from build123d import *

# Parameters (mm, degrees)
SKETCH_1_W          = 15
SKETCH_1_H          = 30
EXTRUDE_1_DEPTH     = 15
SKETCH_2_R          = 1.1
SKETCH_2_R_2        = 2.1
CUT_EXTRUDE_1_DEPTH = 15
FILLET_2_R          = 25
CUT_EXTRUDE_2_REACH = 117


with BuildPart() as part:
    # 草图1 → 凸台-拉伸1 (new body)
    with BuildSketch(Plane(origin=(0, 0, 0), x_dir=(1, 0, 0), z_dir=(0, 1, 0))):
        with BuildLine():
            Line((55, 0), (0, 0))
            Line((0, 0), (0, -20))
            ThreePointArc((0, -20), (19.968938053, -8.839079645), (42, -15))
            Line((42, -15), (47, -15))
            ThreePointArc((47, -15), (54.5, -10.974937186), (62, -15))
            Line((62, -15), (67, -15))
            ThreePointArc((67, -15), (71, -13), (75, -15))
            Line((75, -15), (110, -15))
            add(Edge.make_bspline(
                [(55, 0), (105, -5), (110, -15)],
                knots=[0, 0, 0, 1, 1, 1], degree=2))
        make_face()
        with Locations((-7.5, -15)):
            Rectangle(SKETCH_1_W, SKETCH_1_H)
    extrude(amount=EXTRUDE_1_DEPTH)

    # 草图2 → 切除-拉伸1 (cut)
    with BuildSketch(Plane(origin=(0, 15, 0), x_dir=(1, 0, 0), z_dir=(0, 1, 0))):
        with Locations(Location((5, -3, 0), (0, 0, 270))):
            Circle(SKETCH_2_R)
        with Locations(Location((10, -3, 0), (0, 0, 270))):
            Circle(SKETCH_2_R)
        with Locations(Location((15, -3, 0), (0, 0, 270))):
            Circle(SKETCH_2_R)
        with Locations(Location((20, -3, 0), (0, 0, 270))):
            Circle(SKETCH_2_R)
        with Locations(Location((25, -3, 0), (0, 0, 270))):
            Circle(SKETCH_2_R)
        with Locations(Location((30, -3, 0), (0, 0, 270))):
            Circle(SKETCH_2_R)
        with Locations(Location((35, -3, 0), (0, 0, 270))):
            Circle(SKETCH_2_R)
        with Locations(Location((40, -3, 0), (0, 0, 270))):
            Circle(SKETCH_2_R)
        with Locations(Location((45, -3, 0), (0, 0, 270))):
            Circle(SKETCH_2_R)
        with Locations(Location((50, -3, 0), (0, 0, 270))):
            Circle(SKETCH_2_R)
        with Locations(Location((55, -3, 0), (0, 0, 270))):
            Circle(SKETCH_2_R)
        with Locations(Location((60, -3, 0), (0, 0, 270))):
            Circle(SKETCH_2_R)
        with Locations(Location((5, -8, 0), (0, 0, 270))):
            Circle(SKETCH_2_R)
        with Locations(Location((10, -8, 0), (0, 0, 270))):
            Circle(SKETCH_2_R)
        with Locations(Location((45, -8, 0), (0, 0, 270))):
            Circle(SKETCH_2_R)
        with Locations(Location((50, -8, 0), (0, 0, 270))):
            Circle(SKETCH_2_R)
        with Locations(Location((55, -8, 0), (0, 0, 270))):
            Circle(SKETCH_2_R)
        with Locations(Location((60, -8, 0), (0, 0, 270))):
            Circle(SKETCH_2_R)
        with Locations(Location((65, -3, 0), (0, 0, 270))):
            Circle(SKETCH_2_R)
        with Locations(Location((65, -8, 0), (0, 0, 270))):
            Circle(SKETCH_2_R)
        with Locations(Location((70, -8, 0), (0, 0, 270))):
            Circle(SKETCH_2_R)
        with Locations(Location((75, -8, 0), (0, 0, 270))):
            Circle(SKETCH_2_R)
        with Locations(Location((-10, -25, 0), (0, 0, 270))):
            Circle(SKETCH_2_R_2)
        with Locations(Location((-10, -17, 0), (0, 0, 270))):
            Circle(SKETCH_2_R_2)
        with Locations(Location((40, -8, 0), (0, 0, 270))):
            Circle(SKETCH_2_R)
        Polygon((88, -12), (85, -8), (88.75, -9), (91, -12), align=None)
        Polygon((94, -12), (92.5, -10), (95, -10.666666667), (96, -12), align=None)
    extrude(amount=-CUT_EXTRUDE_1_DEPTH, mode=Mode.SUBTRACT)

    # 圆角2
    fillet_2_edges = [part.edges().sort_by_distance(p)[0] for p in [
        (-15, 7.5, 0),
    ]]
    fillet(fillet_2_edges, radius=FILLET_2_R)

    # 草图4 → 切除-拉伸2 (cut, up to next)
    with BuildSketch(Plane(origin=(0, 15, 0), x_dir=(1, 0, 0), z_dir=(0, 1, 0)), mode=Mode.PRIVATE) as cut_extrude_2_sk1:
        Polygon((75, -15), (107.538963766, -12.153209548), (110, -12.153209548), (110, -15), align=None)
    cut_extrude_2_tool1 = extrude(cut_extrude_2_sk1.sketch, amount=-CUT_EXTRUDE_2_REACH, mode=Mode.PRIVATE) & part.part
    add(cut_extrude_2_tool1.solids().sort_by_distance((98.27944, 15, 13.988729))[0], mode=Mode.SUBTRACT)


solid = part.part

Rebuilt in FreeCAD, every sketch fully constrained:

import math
import FreeCAD as App
import Part
import Sketcher
Q = App.Units.Quantity


def edges_at(feature, points):
    """Names of the edges that pass closest to the given points."""
    edges = feature.Shape.Edges
    near = lambda p: min(range(len(edges)), key=lambda i: edges[i].distToShape(Part.Vertex(*p))[0])
    return sorted({f"Edge{near(p) + 1}" for p in points})


def add_polygon(sketch, points):
    """Adds a closed chain of lines whose ends are joined by coincident constraints."""
    first, n = sketch.GeometryCount, len(points)
    for a, b in zip(points, points[1:] + points[:1]):
        sketch.addGeometry(Part.LineSegment(App.Vector(*a, 0), App.Vector(*b, 0)), False)
    for i in range(n):
        sketch.addConstraint(Sketcher.Constraint("Coincident", first + i, 2, first + (i + 1) % n, 1))

doc = App.newDocument("Part")
body = doc.addObject("PartDesign::Body", "Body")

sketch1 = doc.addObject("Sketcher::SketchObject", "Sketch")
body.addObject(sketch1)
sketch1.AttachmentSupport = (doc.XZ_Plane, [""])
sketch1.MapMode = "FlatFace"
sketch1.addGeometry([
    Part.LineSegment(App.Vector(55, 0, 0), App.Vector(-15, 0, 0)),
    Part.LineSegment(App.Vector(-15, 0, 0), App.Vector(-15, 30, 0)),
    Part.LineSegment(App.Vector(-15, 30, 0), App.Vector(0, 30, 0)),
    Part.LineSegment(App.Vector(0, 30, 0), App.Vector(0, 20, 0)),
    Part.ArcOfCircle(Part.Circle(App.Vector(23.515325, 38.628728, 0), App.Vector(0, 0, 1), 30), math.radians(-141.613903), math.radians(-51.964046)),
    Part.LineSegment(App.Vector(42, 15, 0), App.Vector(47, 15, 0)),
    Part.ArcOfCircle(Part.Circle(App.Vector(54.5, 19.974937, 0), App.Vector(0, 0, 1), 9), math.radians(-146.44269), math.radians(-33.55731)),
    Part.LineSegment(App.Vector(62, 15, 0), App.Vector(67, 15, 0)),
    Part.ArcOfCircle(Part.Circle(App.Vector(71, 18, 0), App.Vector(0, 0, 1), 5), math.radians(-143.130102), math.radians(-36.869898)),
    Part.LineSegment(App.Vector(75, 15, 0), App.Vector(110, 15, 0)),
    Part.BSplineCurve([App.Vector(55, 0, 0), App.Vector(105, 5, 0), App.Vector(110, 15, 0)], [3, 3], [0, 1], False, 2, [1, 1, 1], False),
], False)
sketch1.addConstraint([
    Sketcher.Constraint("Block", 10),
    Sketcher.Constraint("Coincident", 0, 2, 1, 1),
    Sketcher.Constraint("Coincident", 1, 2, 2, 1),
    Sketcher.Constraint("Coincident", 2, 2, 3, 1),
    Sketcher.Constraint("Coincident", 3, 2, 4, 1),
    Sketcher.Constraint("Coincident", 4, 2, 5, 1),
    Sketcher.Constraint("Coincident", 5, 2, 6, 1),
    Sketcher.Constraint("Coincident", 6, 2, 7, 1),
    Sketcher.Constraint("Coincident", 7, 2, 8, 1),
    Sketcher.Constraint("Coincident", 8, 2, 9, 1),
    Sketcher.Constraint("Coincident", 9, 2, 10, 2),
    Sketcher.Constraint("Coincident", 10, 1, 0, 1),
    Sketcher.Constraint("Horizontal", 0),
    Sketcher.Constraint("Vertical", 1),
    Sketcher.Constraint("Horizontal", 2),
    Sketcher.Constraint("Vertical", 3),
    Sketcher.Constraint("Horizontal", 5),
    Sketcher.Constraint("Horizontal", 7),
    Sketcher.Constraint("Horizontal", 9),
    Sketcher.Constraint("PointOnObject", 2, 2, -2),
    Sketcher.Constraint("Horizontal", 5, 2, 6, 2),
    Sketcher.Constraint("Horizontal", 7, 2, 8, 2),
    Sketcher.Constraint("Equal", 5, 7),
    Sketcher.Constraint("Radius", 4, 30.0),
    Sketcher.Constraint("Radius", 6, 9.0),
    Sketcher.Constraint("Radius", 8, 5.0),
    Sketcher.Constraint("DistanceX", 0, 2, 0, 1, 70.0),
    Sketcher.Constraint("DistanceX", 5, 1, 5, 2, 5.0),
    Sketcher.Constraint("DistanceX", 9, 1, 9, 2, 35.0),
    Sketcher.Constraint("DistanceY", 1, 1, 1, 2, 30.0),
    Sketcher.Constraint("DistanceY", 3, 2, 3, 1, 10.0),
    Sketcher.Constraint("DistanceX", -1, 1, 8, 3, 71.0),
    Sketcher.Constraint("DistanceX", -1, 1, 4, 2, 42.0),
])
pad1 = doc.addObject("PartDesign::Pad", "Pad")
body.addObject(pad1)
pad1.Profile = sketch1
pad1.Length = 15
pad1.Reversed = True

sketch2 = doc.addObject("Sketcher::SketchObject", "Sketch001")
body.addObject(sketch2)
sketch2.AttachmentSupport = (doc.XZ_Plane, [""])
sketch2.MapMode = "FlatFace"
sketch2.AttachmentOffset = App.Placement(App.Vector(0, 0, -15), App.Rotation())
sketch2.addGeometry(Part.Circle(App.Vector(5, 3, 0), App.Vector(0, 0, 1), 1.1), False)
sketch2.addGeometry(Part.Circle(App.Vector(10, 3, 0), App.Vector(0, 0, 1), 1.1), False)
sketch2.addGeometry(Part.Circle(App.Vector(15, 3, 0), App.Vector(0, 0, 1), 1.1), False)
sketch2.addGeometry(Part.Circle(App.Vector(20, 3, 0), App.Vector(0, 0, 1), 1.1), False)
sketch2.addGeometry(Part.Circle(App.Vector(25, 3, 0), App.Vector(0, 0, 1), 1.1), False)
sketch2.addGeometry(Part.Circle(App.Vector(30, 3, 0), App.Vector(0, 0, 1), 1.1), False)
sketch2.addGeometry(Part.Circle(App.Vector(35, 3, 0), App.Vector(0, 0, 1), 1.1), False)
sketch2.addGeometry(Part.Circle(App.Vector(40, 3, 0), App.Vector(0, 0, 1), 1.1), False)
sketch2.addGeometry(Part.Circle(App.Vector(45, 3, 0), App.Vector(0, 0, 1), 1.1), False)
sketch2.addGeometry(Part.Circle(App.Vector(50, 3, 0), App.Vector(0, 0, 1), 1.1), False)
sketch2.addGeometry(Part.Circle(App.Vector(55, 3, 0), App.Vector(0, 0, 1), 1.1), False)
sketch2.addGeometry(Part.Circle(App.Vector(60, 3, 0), App.Vector(0, 0, 1), 1.1), False)
sketch2.addGeometry(Part.Circle(App.Vector(5, 8, 0), App.Vector(0, 0, 1), 1.1), False)
sketch2.addGeometry(Part.Circle(App.Vector(10, 8, 0), App.Vector(0, 0, 1), 1.1), False)
sketch2.addGeometry(Part.Circle(App.Vector(45, 8, 0), App.Vector(0, 0, 1), 1.1), False)
sketch2.addGeometry(Part.Circle(App.Vector(50, 8, 0), App.Vector(0, 0, 1), 1.1), False)
sketch2.addGeometry(Part.Circle(App.Vector(55, 8, 0), App.Vector(0, 0, 1), 1.1), False)
sketch2.addGeometry(Part.Circle(App.Vector(60, 8, 0), App.Vector(0, 0, 1), 1.1), False)
sketch2.addGeometry(Part.Circle(App.Vector(65, 3, 0), App.Vector(0, 0, 1), 1.1), False)
sketch2.addGeometry(Part.Circle(App.Vector(65, 8, 0), App.Vector(0, 0, 1), 1.1), False)
sketch2.addGeometry(Part.Circle(App.Vector(70, 8, 0), App.Vector(0, 0, 1), 1.1), False)
sketch2.addGeometry(Part.Circle(App.Vector(75, 8, 0), App.Vector(0, 0, 1), 1.1), False)
sketch2.addGeometry(Part.Circle(App.Vector(-10, 25, 0), App.Vector(0, 0, 1), 2.1), False)
sketch2.addGeometry(Part.Circle(App.Vector(-10, 17, 0), App.Vector(0, 0, 1), 2.1), False)
sketch2.addGeometry(Part.Circle(App.Vector(40, 8, 0), App.Vector(0, 0, 1), 1.1), False)
add_polygon(sketch2, [(85, 8), (88, 12), (91, 12), (88.8, 9)])
add_polygon(sketch2, [(92.5, 10), (94, 12), (96, 12), (95, 10.7)])
sketch2.addConstraint([
    Sketcher.Constraint("Horizontal", 26),
    Sketcher.Constraint("Horizontal", 30),
    Sketcher.Constraint("Equal", 0, 1),
    Sketcher.Constraint("Equal", 1, 2),
    Sketcher.Constraint("Equal", 2, 3),
    Sketcher.Constraint("Equal", 3, 4),
    Sketcher.Constraint("Equal", 4, 5),
    Sketcher.Constraint("Equal", 5, 6),
    Sketcher.Constraint("Equal", 6, 7),
    Sketcher.Constraint("Equal", 7, 8),
    Sketcher.Constraint("Equal", 8, 9),
    Sketcher.Constraint("Equal", 9, 10),
    Sketcher.Constraint("Equal", 10, 11),
    Sketcher.Constraint("Equal", 11, 12),
    Sketcher.Constraint("Equal", 12, 13),
    Sketcher.Constraint("Equal", 13, 14),
    Sketcher.Constraint("Equal", 14, 15),
    Sketcher.Constraint("Equal", 15, 16),
    Sketcher.Constraint("Equal", 16, 17),
    Sketcher.Constraint("Equal", 17, 18),
    Sketcher.Constraint("Equal", 18, 19),
    Sketcher.Constraint("Equal", 19, 20),
    Sketcher.Constraint("Equal", 20, 21),
    Sketcher.Constraint("Equal", 22, 23),
    Sketcher.Constraint("Equal", 21, 24),
    Sketcher.Constraint("Parallel", 25, 27),
    Sketcher.Constraint("Parallel", 27, 29),
    Sketcher.Constraint("Parallel", 29, 31),
    Sketcher.Constraint("Parallel", 28, 32),
    Sketcher.Constraint("Horizontal", 0, 3, 1, 3),
    Sketcher.Constraint("Horizontal", 1, 3, 2, 3),
    Sketcher.Constraint("Horizontal", 2, 3, 3, 3),
    Sketcher.Constraint("Horizontal", 3, 3, 4, 3),
    Sketcher.Constraint("Horizontal", 4, 3, 5, 3),
    Sketcher.Constraint("Horizontal", 5, 3, 6, 3),
    Sketcher.Constraint("Horizontal", 6, 3, 7, 3),
    Sketcher.Constraint("Horizontal", 7, 3, 8, 3),
    Sketcher.Constraint("Horizontal", 8, 3, 9, 3),
    Sketcher.Constraint("Horizontal", 9, 3, 10, 3),
    Sketcher.Constraint("Horizontal", 10, 3, 11, 3),
    Sketcher.Constraint("Horizontal", 12, 3, 13, 3),
    Sketcher.Constraint("Horizontal", 13, 3, 14, 3),
    Sketcher.Constraint("Horizontal", 14, 3, 15, 3),
    Sketcher.Constraint("Horizontal", 15, 3, 16, 3),
    Sketcher.Constraint("Horizontal", 16, 3, 17, 3),
    Sketcher.Constraint("Horizontal", 11, 3, 18, 3),
    Sketcher.Constraint("Horizontal", 17, 3, 19, 3),
    Sketcher.Constraint("Horizontal", 19, 3, 20, 3),
    Sketcher.Constraint("Horizontal", 20, 3, 21, 3),
    Sketcher.Constraint("Horizontal", 21, 3, 24, 3),
    Sketcher.Constraint("Horizontal", 24, 3, 28, 2),
    Sketcher.Constraint("Horizontal", 26, 2, 29, 2),
    Sketcher.Constraint("Vertical", 0, 3, 12, 3),
    Sketcher.Constraint("Vertical", 1, 3, 13, 3),
    Sketcher.Constraint("Vertical", 8, 3, 14, 3),
    Sketcher.Constraint("Vertical", 9, 3, 15, 3),
    Sketcher.Constraint("Vertical", 10, 3, 16, 3),
    Sketcher.Constraint("Vertical", 11, 3, 17, 3),
    Sketcher.Constraint("Vertical", 18, 3, 19, 3),
    Sketcher.Constraint("Vertical", 22, 3, 23, 3),
    Sketcher.Constraint("Vertical", 7, 3, 24, 3),
    Sketcher.Constraint("Diameter", 0, 2.2),
    Sketcher.Constraint("Diameter", 22, 4.2),
    Sketcher.Constraint("DistanceX", 26, 1, 26, 2, 3.0),
    Sketcher.Constraint("DistanceX", 30, 1, 30, 2, 2.0),
    Sketcher.Constraint("Distance", 25, 5.0),
    Sketcher.Constraint("DistanceX", -1, 1, 0, 3, 5.0),
    Sketcher.Constraint("DistanceY", -1, 1, 0, 3, 3.0),
    Sketcher.Constraint("DistanceX", -1, 1, 1, 3, 10.0),
    Sketcher.Constraint("DistanceX", -1, 1, 2, 3, 15.0),
    Sketcher.Constraint("DistanceX", -1, 1, 3, 3, 20.0),
    Sketcher.Constraint("DistanceX", -1, 1, 4, 3, 25.0),
    Sketcher.Constraint("DistanceX", -1, 1, 5, 3, 30.0),
    Sketcher.Constraint("DistanceX", -1, 1, 6, 3, 35.0),
    Sketcher.Constraint("DistanceX", -1, 1, 7, 3, 40.0),
    Sketcher.Constraint("DistanceX", -1, 1, 8, 3, 45.0),
    Sketcher.Constraint("DistanceX", -1, 1, 9, 3, 50.0),
    Sketcher.Constraint("DistanceX", -1, 1, 10, 3, 55.0),
    Sketcher.Constraint("DistanceX", -1, 1, 11, 3, 60.0),
    Sketcher.Constraint("DistanceY", -1, 1, 12, 3, 8.0),
    Sketcher.Constraint("DistanceX", -1, 1, 18, 3, 65.0),
    Sketcher.Constraint("DistanceX", -1, 1, 20, 3, 70.0),
    Sketcher.Constraint("DistanceX", -1, 1, 21, 3, 75.0),
    Sketcher.Constraint("DistanceX", 22, 3, -1, 1, 10.0),
    Sketcher.Constraint("DistanceY", -1, 1, 22, 3, 25.0),
    Sketcher.Constraint("DistanceY", -1, 1, 23, 3, 17.0),
    Sketcher.Constraint("DistanceX", -1, 1, 25, 2, 88.0),
    Sketcher.Constraint("DistanceY", -1, 1, 25, 2, 12.0),
    Sketcher.Constraint("DistanceY", -1, 1, 27, 2, 9.0),
    Sketcher.Constraint("DistanceX", -1, 1, 29, 2, 94.0),
    Sketcher.Constraint("DistanceX", -1, 1, 31, 2, 95.0),
])
pocket1 = doc.addObject("PartDesign::Pocket", "Pocket")
body.addObject(pocket1)
pocket1.Profile = sketch2
pocket1.Length = 15
pocket1.Reversed = True
doc.recompute()

fillet = doc.addObject("PartDesign::Fillet", "Fillet")
body.addObject(fillet)
fillet.Base = (pocket1, edges_at(pocket1, [(-15, 7.5, 0)]))
fillet.Radius = 25

sketch3 = doc.addObject("Sketcher::SketchObject", "Sketch002")
body.addObject(sketch3)
sketch3.AttachmentSupport = (doc.XZ_Plane, [""])
sketch3.MapMode = "FlatFace"
sketch3.AttachmentOffset = App.Placement(App.Vector(0, 0, -15), App.Rotation())
add_polygon(sketch3, [(107.5, 12.2), (75, 15), (110, 15), (110, 12.2)])
sketch3.addConstraint([
    Sketcher.Constraint("Horizontal", 1),
    Sketcher.Constraint("Vertical", 2),
    Sketcher.Constraint("Horizontal", 3),
    Sketcher.Constraint("DistanceX", 1, 1, 1, 2, 35.0),
    Sketcher.Constraint("Angle", 0, Q("175 deg")),
    Sketcher.Constraint("DistanceX", -1, 1, 0, 2, 75.0),
    Sketcher.Constraint("DistanceY", -1, 1, 0, 2, 15.0),
    Sketcher.Constraint("DistanceY", 2, 2, 2, 1, 2.84679),
])
pocket2 = doc.addObject("PartDesign::Pocket", "Pocket001")
body.addObject(pocket2)
pocket2.Profile = sketch3
pocket2.Type = "UpToFirst"
pocket2.Reversed = True

doc.recompute()
